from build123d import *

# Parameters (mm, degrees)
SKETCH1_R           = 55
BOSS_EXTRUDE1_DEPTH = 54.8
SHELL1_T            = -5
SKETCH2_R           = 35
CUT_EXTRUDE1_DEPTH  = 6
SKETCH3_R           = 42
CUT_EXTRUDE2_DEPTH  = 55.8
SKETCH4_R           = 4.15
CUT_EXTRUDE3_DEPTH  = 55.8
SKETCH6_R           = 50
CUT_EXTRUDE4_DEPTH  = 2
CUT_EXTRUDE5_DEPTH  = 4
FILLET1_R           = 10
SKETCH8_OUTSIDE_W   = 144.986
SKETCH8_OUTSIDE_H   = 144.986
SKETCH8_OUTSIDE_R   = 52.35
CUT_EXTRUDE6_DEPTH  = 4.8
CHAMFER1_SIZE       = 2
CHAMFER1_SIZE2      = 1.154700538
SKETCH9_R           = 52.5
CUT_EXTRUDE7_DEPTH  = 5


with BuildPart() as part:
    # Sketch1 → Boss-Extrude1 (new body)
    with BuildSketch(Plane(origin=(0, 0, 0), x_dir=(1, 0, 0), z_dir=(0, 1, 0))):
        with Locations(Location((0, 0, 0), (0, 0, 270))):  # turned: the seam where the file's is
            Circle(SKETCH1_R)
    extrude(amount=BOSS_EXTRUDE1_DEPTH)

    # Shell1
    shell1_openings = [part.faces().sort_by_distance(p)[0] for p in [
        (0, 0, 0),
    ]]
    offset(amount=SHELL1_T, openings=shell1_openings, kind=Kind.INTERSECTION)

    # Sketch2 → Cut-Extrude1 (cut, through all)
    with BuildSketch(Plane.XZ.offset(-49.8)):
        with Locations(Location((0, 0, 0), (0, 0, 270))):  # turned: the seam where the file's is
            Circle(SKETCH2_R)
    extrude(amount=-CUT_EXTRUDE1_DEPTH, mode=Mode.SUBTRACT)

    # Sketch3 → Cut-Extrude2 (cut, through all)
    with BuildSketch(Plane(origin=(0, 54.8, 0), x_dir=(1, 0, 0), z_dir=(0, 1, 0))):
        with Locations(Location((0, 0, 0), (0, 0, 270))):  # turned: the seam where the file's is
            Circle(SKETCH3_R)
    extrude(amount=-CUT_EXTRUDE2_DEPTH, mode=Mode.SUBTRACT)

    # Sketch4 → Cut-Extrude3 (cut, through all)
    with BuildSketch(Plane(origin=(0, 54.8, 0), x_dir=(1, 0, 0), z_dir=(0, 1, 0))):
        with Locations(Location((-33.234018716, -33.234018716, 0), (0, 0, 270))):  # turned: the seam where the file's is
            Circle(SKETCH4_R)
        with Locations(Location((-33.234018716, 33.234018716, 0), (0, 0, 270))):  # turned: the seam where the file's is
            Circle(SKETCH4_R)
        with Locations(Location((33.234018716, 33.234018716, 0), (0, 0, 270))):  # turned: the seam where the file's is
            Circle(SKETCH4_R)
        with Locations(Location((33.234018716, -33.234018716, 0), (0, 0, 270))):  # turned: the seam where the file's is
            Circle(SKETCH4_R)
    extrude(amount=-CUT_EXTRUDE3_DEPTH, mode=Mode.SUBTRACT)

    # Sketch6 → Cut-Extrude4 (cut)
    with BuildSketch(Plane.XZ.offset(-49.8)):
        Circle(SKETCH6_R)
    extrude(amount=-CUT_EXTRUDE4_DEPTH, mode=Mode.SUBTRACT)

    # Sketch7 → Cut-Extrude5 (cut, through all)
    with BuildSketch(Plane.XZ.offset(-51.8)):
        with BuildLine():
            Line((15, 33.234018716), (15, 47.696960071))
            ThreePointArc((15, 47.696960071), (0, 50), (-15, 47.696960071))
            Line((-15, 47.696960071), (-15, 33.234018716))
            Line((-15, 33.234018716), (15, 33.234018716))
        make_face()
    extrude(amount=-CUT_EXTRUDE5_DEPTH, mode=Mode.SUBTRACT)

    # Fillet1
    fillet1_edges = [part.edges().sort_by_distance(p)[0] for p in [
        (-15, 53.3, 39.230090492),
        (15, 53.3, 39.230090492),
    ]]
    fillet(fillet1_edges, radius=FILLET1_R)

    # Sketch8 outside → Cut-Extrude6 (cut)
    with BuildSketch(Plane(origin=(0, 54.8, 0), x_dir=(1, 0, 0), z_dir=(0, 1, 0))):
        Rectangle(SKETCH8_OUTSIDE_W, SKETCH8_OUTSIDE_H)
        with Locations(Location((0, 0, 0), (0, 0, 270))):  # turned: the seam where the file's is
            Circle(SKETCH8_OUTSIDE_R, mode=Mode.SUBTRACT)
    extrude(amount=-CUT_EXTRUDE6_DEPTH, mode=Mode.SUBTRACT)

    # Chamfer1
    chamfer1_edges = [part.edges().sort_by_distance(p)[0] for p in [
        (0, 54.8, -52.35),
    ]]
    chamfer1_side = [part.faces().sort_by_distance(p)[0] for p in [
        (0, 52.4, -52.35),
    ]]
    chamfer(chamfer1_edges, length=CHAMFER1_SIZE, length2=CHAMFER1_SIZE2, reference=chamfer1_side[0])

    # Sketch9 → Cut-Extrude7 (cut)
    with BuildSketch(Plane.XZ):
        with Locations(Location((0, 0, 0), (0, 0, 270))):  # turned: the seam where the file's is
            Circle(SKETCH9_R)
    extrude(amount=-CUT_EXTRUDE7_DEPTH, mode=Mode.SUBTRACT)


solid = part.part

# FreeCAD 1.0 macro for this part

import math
import FreeCAD as App
import Part
import Sketcher

V = App.Vector


def edges_at(feature, points):
    """Names of the edges that pass closest to the given points."""
    edges = feature.Shape.Edges
    near = lambda p: min(range(len(edges)), key=lambda i: edges[i].distToShape(Part.Vertex(*p))[0])
    return sorted({f"Edge{near(p) + 1}" for p in points})


def faces_at(feature, points):
    """Names of the faces that lie closest to the given points."""
    faces = feature.Shape.Faces
    near = lambda p: min(range(len(faces)), key=lambda i: faces[i].distToShape(Part.Vertex(*p))[0])
    return sorted({f"Face{near(p) + 1}" for p in points})


def add_polygon(sketch, points):
    """Adds a closed chain of lines whose ends are joined by coincident constraints."""
    first, n = sketch.GeometryCount, len(points)
    for a, b in zip(points, points[1:] + points[:1]):
        sketch.addGeometry(Part.LineSegment(App.Vector(*a, 0), App.Vector(*b, 0)), False)
    for i in range(n):
        sketch.addConstraint(Sketcher.Constraint("Coincident", first + i, 2, first + (i + 1) % n, 1))

doc = App.newDocument("Part")
params = doc.addObject("Spreadsheet::Sheet", "Params")
for row, (alias, value) in enumerate([
    ("sketch1_diameter", "110 mm"),
    ("pad1_length", "54.8 mm"),
    ("thickness_wall", "5 mm"),
    ("sketch2_diameter", "70 mm"),
    ("sketch3_diameter", "84 mm"),
    ("sketch4_diameter", "8.3 mm"),
    ("sketch5_diameter", "100 mm"),
    ("pocket4_length", "2 mm"),
    ("sketch6_radius", "50 mm"),
    ("sketch6_width", "30 mm"),
    ("fillet_radius", "10 mm"),
    ("sketch7_diameter", "104.7 mm"),
    ("pocket6_length", "4.8 mm"),
    ("chamfer_size", "2 mm"),
    ("chamfer_size2", "1.154701 mm"),
    ("sketch8_diameter", "105 mm"),
    ("pocket7_length", "5 mm"),
], start=1):
    params.set(f"A{row}", alias)
    params.set(f"B{row}", "=" + value)
    params.setAlias(f"B{row}", alias)

body = doc.addObject("PartDesign::Body", "Body")

# Sketch on XZ plane
sketch1 = body.newObject("Sketcher::SketchObject", "Sketch")
sketch1.AttachmentSupport = (doc.getObject("XZ_Plane"), [""])
sketch1.MapMode = "FlatFace"
sketch1.addGeometry(Part.Circle(V(0, 0, 0), V(0, 0, 1), 55), False)
sketch1.addConstraint([
    Sketcher.Constraint("Coincident", 0, 3, -1, 1),
    Sketcher.Constraint("Diameter", 0, 110.0),
])
sketch1.setExpression("Constraints[1]", "Params.sketch1_diameter")
pad1 = body.newObject("PartDesign::Pad", "Pad")
pad1.Profile = sketch1
pad1.setExpression("Length", "Params.pad1_length")
pad1.Reversed = True
doc.recompute()

thickness = body.newObject("PartDesign::Thickness", "Thickness")
thickness.Base = (pad1, faces_at(pad1, [(0, 0, 0)]))
thickness.setExpression("Value", "Params.thickness_wall")
thickness.Reversed = True
thickness.Join = "Intersection"

# Sketch on XZ plane
sketch2 = body.newObject("Sketcher::SketchObject", "Sketch001")
sketch2.AttachmentSupport = (doc.getObject("XZ_Plane"), [""])
sketch2.MapMode = "FlatFace"
sketch2.AttachmentOffset = App.Placement(V(0, 0, -49.8), App.Rotation())
sketch2.addGeometry(Part.Circle(V(0, 0, 0), V(0, 0, 1), 35), False)
sketch2.addConstraint([
    Sketcher.Constraint("Coincident", 0, 3, -1, 1),
    Sketcher.Constraint("Diameter", 0, 70.0),
])
sketch2.setExpression("Constraints[1]", "Params.sketch2_diameter")
pocket1 = body.newObject("PartDesign::Pocket", "Pocket")
pocket1.Profile = sketch2
pocket1.Type = "ThroughAll"

# Sketch on XZ plane
sketch3 = body.newObject("Sketcher::SketchObject", "Sketch002")
sketch3.AttachmentSupport = (doc.getObject("XZ_Plane"), [""])
sketch3.MapMode = "FlatFace"
sketch3.AttachmentOffset = App.Placement(V(0, 0, -54.8), App.Rotation())
sketch3.addGeometry(Part.Circle(V(0, 0, 0), V(0, 0, 1), 42), False)
sketch3.addConstraint([
    Sketcher.Constraint("Coincident", 0, 3, -1, 1),
    Sketcher.Constraint("Diameter", 0, 84.0),
])
sketch3.setExpression("Constraints[1]", "Params.sketch3_diameter")
pocket2 = body.newObject("PartDesign::Pocket", "Pocket001")
pocket2.Profile = sketch3
pocket2.Type = "ThroughAll"
pocket2.Reversed = True

# Sketch on XZ plane
sketch4 = body.newObject("Sketcher::SketchObject", "Sketch003")
sketch4.AttachmentSupport = (doc.getObject("XZ_Plane"), [""])
sketch4.MapMode = "FlatFace"
sketch4.AttachmentOffset = App.Placement(V(0, 0, -54.8), App.Rotation())
sketch4.addGeometry([
    Part.Circle(V(-33.2, 33.2, 0), V(0, 0, 1), 4.2),
    Part.Circle(V(-33.2, -33.2, 0), V(0, 0, 1), 4.2),
    Part.Circle(V(33.2, -33.2, 0), V(0, 0, 1), 4.2),
    Part.Circle(V(33.2, 33.2, 0), V(0, 0, 1), 4.2),
], False)
sketch4.addConstraint([
    Sketcher.Constraint("Equal", 0, 1),
    Sketcher.Constraint("Equal", 1, 2),
    Sketcher.Constraint("Equal", 2, 3),
    Sketcher.Constraint("Symmetric", 0, 3, 2, 3, -1, 1),
    Sketcher.Constraint("Symmetric", 1, 3, 3, 3, -1, 1),
    Sketcher.Constraint("Symmetric", 1, 3, 2, 3, -2),
    Sketcher.Constraint("Diameter", 0, 8.3),
    Sketcher.Constraint("DistanceX", 0, 3, -1, 1, 33.234019),
    Sketcher.Constraint("DistanceY", -1, 1, 0, 3, 33.234019),
])
sketch4.setExpression("Constraints[6]", "Params.sketch4_diameter")
pocket3 = body.newObject("PartDesign::Pocket", "Pocket002")
pocket3.Profile = sketch4
pocket3.Type = "ThroughAll"
pocket3.Reversed = True

# Sketch on XZ plane
sketch5 = body.newObject("Sketcher::SketchObject", "Sketch004")
sketch5.AttachmentSupport = (doc.getObject("XZ_Plane"), [""])
sketch5.MapMode = "FlatFace"
sketch5.AttachmentOffset = App.Placement(V(0, 0, -49.8), App.Rotation())
sketch5.addGeometry(Part.Circle(V(0, 0, 0), V(0, 0, 1), 50), False)
sketch5.addConstraint([
    Sketcher.Constraint("Coincident", 0, 3, -1, 1),
    Sketcher.Constraint("Diameter", 0, 100.0),
])
sketch5.setExpression("Constraints[1]", "Params.sketch5_diameter")
pocket4 = body.newObject("PartDesign::Pocket", "Pocket003")
pocket4.Profile = sketch5
pocket4.setExpression("Length", "Params.pocket4_length")

# Sketch on XZ plane
sketch6 = body.newObject("Sketcher::SketchObject", "Sketch005")
sketch6.AttachmentSupport = (doc.getObject("XZ_Plane"), [""])
sketch6.MapMode = "FlatFace"
sketch6.AttachmentOffset = App.Placement(V(0, 0, -51.8), App.Rotation())
sketch6.addGeometry([
    Part.LineSegment(V(15, 33, 0), V(15, 48, 0)),
    Part.ArcOfCircle(Part.Circle(V(0, 0, 0), V(0, 0, 1), 50), math.radians(73), math.radians(107)),
    Part.LineSegment(V(-15, 48, 0), V(-15, 33, 0)),
    Part.LineSegment(V(-15, 33, 0), V(15, 33, 0)),
], False)
sketch6.addConstraint([
    Sketcher.Constraint("Coincident", 0, 2, 1, 1),
    Sketcher.Constraint("Coincident", 1, 2, 2, 1),
    Sketcher.Constraint("Coincident", 2, 2, 3, 1),
    Sketcher.Constraint("Coincident", 3, 2, 0, 1),
    Sketcher.Constraint("Vertical", 0),
    Sketcher.Constraint("Vertical", 2),
    Sketcher.Constraint("Horizontal", 3),
    Sketcher.Constraint("Coincident", 1, 3, -1, 1),
    Sketcher.Constraint("Horizontal", 0, 2, 1, 2),
    Sketcher.Constraint("Radius", 1, 50.0),
    Sketcher.Constraint("DistanceX", 3, 1, 3, 2, 30.0),
    Sketcher.Constraint("DistanceY", 0, 1, 0, 2, 14.462941),
])
sketch6.setExpression("Constraints[9]", "Params.sketch6_radius")
sketch6.setExpression("Constraints[10]", "Params.sketch6_width")
pocket5 = body.newObject("PartDesign::Pocket", "Pocket004")
pocket5.Profile = sketch6
pocket5.Type = "ThroughAll"
doc.recompute()

fillet = body.newObject("PartDesign::Fillet", "Fillet")
fillet.Base = (pocket5, edges_at(pocket5, [(-15, 53.3, 39.23), (15, 53.3, 39.23)]))
fillet.setExpression("Radius", "Params.fillet_radius")

# Sketch on XZ plane
sketch7 = body.newObject("Sketcher::SketchObject", "Sketch006")
sketch7.AttachmentSupport = (doc.getObject("XZ_Plane"), [""])
sketch7.MapMode = "FlatFace"
sketch7.AttachmentOffset = App.Placement(V(0, 0, -54.8), App.Rotation())
add_polygon(sketch7, [(-72, -72), (-72, 72), (72, 72), (72, -72)])  # lines 0-3
sketch7.addGeometry(Part.Circle(V(0, 0, 0), V(0, 0, 1), 52), False)  # 4
sketch7.addConstraint([
    Sketcher.Constraint("Vertical", 0),
    Sketcher.Constraint("Horizontal", 1),
    Sketcher.Constraint("Vertical", 2),
    Sketcher.Constraint("Horizontal", 3),
    Sketcher.Constraint("Coincident", 4, 3, -1, 1),
    Sketcher.Constraint("Symmetric", 0, 2, 2, 2, -1, 1),
    Sketcher.Constraint("Equal", 3, 0),
    Sketcher.Constraint("Diameter", 4, 104.7),
    Sketcher.Constraint("DistanceX", 1, 1, 1, 2, 144.986),
])
sketch7.setExpression("Constraints[11]", "Params.sketch7_diameter")
pocket6 = body.newObject("PartDesign::Pocket", "Pocket005")
pocket6.Profile = sketch7
pocket6.setExpression("Length", "Params.pocket6_length")
pocket6.Reversed = True
doc.recompute()

chamfer = body.newObject("PartDesign::Chamfer", "Chamfer")
chamfer.Base = (pocket6, edges_at(pocket6, [(0, 54.8, -52.35)]))
chamfer.ChamferType = "Two distances"
chamfer.setExpression("Size", "Params.chamfer_size")
chamfer.setExpression("Size2", "Params.chamfer_size2")
chamfer.FlipDirection = True

# Sketch on XZ plane
sketch8 = body.newObject("Sketcher::SketchObject", "Sketch007")
sketch8.AttachmentSupport = (doc.getObject("XZ_Plane"), [""])
sketch8.MapMode = "FlatFace"
sketch8.addGeometry(Part.Circle(V(0, 0, 0), V(0, 0, 1), 52), False)
sketch8.addConstraint([
    Sketcher.Constraint("Coincident", 0, 3, -1, 1),
    Sketcher.Constraint("Diameter", 0, 105.0),
])
sketch8.setExpression("Constraints[1]", "Params.sketch8_diameter")
pocket7 = body.newObject("PartDesign::Pocket", "Pocket006")
pocket7.Profile = sketch8
pocket7.setExpression("Length", "Params.pocket7_length")

doc.recompute()
